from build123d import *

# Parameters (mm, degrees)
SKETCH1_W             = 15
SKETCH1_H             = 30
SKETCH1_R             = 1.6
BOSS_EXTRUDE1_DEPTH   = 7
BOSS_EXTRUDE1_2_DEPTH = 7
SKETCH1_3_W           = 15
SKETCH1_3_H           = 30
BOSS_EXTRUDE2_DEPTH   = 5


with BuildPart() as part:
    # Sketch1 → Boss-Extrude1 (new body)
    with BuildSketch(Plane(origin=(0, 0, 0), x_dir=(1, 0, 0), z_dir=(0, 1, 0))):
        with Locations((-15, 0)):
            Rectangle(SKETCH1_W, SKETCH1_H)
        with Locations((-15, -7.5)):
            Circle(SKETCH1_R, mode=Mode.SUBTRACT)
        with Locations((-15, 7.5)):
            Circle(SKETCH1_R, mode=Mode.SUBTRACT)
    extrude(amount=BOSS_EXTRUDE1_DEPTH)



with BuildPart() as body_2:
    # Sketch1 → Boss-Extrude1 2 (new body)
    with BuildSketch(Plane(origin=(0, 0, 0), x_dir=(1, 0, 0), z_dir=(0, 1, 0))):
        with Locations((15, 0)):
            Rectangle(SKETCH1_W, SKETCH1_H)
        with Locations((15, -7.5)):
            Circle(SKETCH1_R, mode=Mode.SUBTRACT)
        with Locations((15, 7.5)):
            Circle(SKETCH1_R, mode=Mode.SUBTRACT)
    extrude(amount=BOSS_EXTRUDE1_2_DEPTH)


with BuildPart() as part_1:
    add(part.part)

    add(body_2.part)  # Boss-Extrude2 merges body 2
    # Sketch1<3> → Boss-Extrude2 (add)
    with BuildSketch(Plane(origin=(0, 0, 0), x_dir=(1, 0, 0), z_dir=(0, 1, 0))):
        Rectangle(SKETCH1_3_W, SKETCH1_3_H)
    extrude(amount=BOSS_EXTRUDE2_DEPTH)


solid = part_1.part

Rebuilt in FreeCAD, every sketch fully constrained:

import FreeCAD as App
import Part
import Sketcher
Q = App.Units.Quantity


def add_polygon(sketch, points):
    """Adds a closed chain of lines whose ends are joined by coincident constraints."""
    first, n = sketch.GeometryCount, len(points)
    for a, b in zip(points, points[1:] + points[:1]):
        sketch.addGeometry(Part.LineSegment(App.Vector(*a, 0), App.Vector(*b, 0)), False)
    for i in range(n):
        sketch.addConstraint(Sketcher.Constraint("Coincident", first + i, 2, first + (i + 1) % n, 1))

doc = App.newDocument("Part")
params = doc.addObject("Spreadsheet::Sheet", "Params")
for row, (alias, value) in enumerate([
    ("sketch1_diameter", "3.2 mm"),
    ("sketch1_width", "15 mm"),
    ("sketch1_height", "30 mm"),
    ("pad1_length", "7 mm"),
    ("sketch2_diameter", "3.2 mm"),
    ("sketch2_width", "15 mm"),
    ("sketch2_height", "30 mm"),
    ("pad2_length", "7 mm"),
    ("sketch3_width", "15 mm"),
    ("sketch3_height", "30 mm"),
    ("pad3_length", "5 mm"),
], start=1):
    params.set(f"A{row}", alias)
    params.set(f"B{row}", "=" + value)
    params.setAlias(f"B{row}", alias)

body = doc.addObject("PartDesign::Body", "Body")

# Sketch on XZ plane
sketch1 = body.newObject("Sketcher::SketchObject", "Sketch")
sketch1.AttachmentSupport = (doc.getObject("XZ_Plane"), [""])
sketch1.MapMode = "FlatFace"
add_polygon(sketch1, [(-22.5, -15), (-22.5, 15), (-7.5, 15), (-7.5, -15)])  # lines 0-3
sketch1.addGeometry(Part.Circle(App.Vector(-15, 7.5, 0), App.Vector(0, 0, 1), 1.6), False)  # 4
sketch1.addGeometry(Part.Circle(App.Vector(-15, -7.5, 0), App.Vector(0, 0, 1), 1.6), False)  # 5
sketch1.addConstraint([
    Sketcher.Constraint("Vertical", 0),
    Sketcher.Constraint("Horizontal", 1),
    Sketcher.Constraint("Vertical", 2),
    Sketcher.Constraint("Horizontal", 3),
    Sketcher.Constraint("Equal", 4, 5),
    Sketcher.Constraint("Symmetric", 4, 3, 5, 3, -1),
    Sketcher.Constraint("Diameter", 4, Q("3.2 mm")),
    Sketcher.Constraint("DistanceX", 1, 1, 1, 2, Q("15 mm")),
    Sketcher.Constraint("DistanceY", 0, 1, 0, 2, Q("30 mm")),
    Sketcher.Constraint("DistanceX", 4, 3, -1, 1, Q("15 mm")),
    Sketcher.Constraint("DistanceY", -1, 1, 0, 2, Q("15 mm")),
    Sketcher.Constraint("DistanceY", 5, 3, 4, 3, Q("15 mm")),
    Sketcher.Constraint("DistanceX", 0, 2, -1, 1, Q("22.5 mm")),
])
sketch1.setExpression("Constraints[10]", "Params.sketch1_diameter")
sketch1.setExpression("Constraints[11]", "Params.sketch1_width")
sketch1.setExpression("Constraints[12]", "Params.sketch1_height")
pad1 = body.newObject("PartDesign::Pad", "Pad")
pad1.Profile = sketch1
pad1.setExpression("Length", "Params.pad1_length")
pad1.Reversed = True
body2 = doc.addObject("PartDesign::Body", "Body001")

# Sketch on XZ plane
sketch2 = body2.newObject("Sketcher::SketchObject", "Sketch001")
sketch2.AttachmentSupport = (doc.getObject("XZ_Plane001"), [""])
sketch2.MapMode = "FlatFace"
add_polygon(sketch2, [(7.5, -15), (7.5, 15), (22.5, 15), (22.5, -15)])  # lines 0-3
sketch2.addGeometry(Part.Circle(App.Vector(15, 7.5, 0), App.Vector(0, 0, 1), 1.6), False)  # 4
sketch2.addGeometry(Part.Circle(App.Vector(15, -7.5, 0), App.Vector(0, 0, 1), 1.6), False)  # 5
sketch2.addConstraint([
    Sketcher.Constraint("Vertical", 0),
    Sketcher.Constraint("Horizontal", 1),
    Sketcher.Constraint("Vertical", 2),
    Sketcher.Constraint("Horizontal", 3),
    Sketcher.Constraint("Equal", 4, 5),
    Sketcher.Constraint("Symmetric", 4, 3, 5, 3, -1),
    Sketcher.Constraint("Diameter", 4, Q("3.2 mm")),
    Sketcher.Constraint("DistanceX", 1, 1, 1, 2, Q("15 mm")),
    Sketcher.Constraint("DistanceY", 0, 1, 0, 2, Q("30 mm")),
    Sketcher.Constraint("DistanceX", -1, 1, 4, 3, Q("15 mm")),
    Sketcher.Constraint("DistanceY", -1, 1, 0, 2, Q("15 mm")),
    Sketcher.Constraint("DistanceY", 5, 3, 4, 3, Q("15 mm")),
    Sketcher.Constraint("DistanceX", -1, 1, 0, 2, Q("7.5 mm")),
])
sketch2.setExpression("Constraints[10]", "Params.sketch2_diameter")
sketch2.setExpression("Constraints[11]", "Params.sketch2_width")
sketch2.setExpression("Constraints[12]", "Params.sketch2_height")
pad2 = body2.newObject("PartDesign::Pad", "Pad001")
pad2.Profile = sketch2
pad2.setExpression("Length", "Params.pad2_length")
pad2.Reversed = True
body.AllowCompound = True
doc.recompute()

boolean = body.newObject("PartDesign::Boolean", "Boolean")
boolean.Type = "Fuse"
boolean.addObjects([body2])

# Sketch on XZ plane
sketch3 = body.newObject("Sketcher::SketchObject", "Sketch002")
sketch3.AttachmentSupport = (doc.getObject("XZ_Plane"), [""])
sketch3.MapMode = "FlatFace"
add_polygon(sketch3, [(-7.5, -15), (-7.5, 15), (7.5, 15), (7.5, -15)])  # lines 0-3
sketch3.addConstraint([
    Sketcher.Constraint("Vertical", 0),
    Sketcher.Constraint("Horizontal", 1),
    Sketcher.Constraint("Vertical", 2),
    Sketcher.Constraint("Horizontal", 3),
    Sketcher.Constraint("Symmetric", 0, 2, 2, 2, -1, 1),
    Sketcher.Constraint("DistanceX", 1, 1, 1, 2, Q("15 mm")),
    Sketcher.Constraint("DistanceY", 0, 1, 0, 2, Q("30 mm")),
])
sketch3.setExpression("Constraints[9]", "Params.sketch3_width")
sketch3.setExpression("Constraints[10]", "Params.sketch3_height")
pad3 = body.newObject("PartDesign::Pad", "Pad002")
pad3.Profile = sketch3
pad3.setExpression("Length", "Params.pad3_length")
pad3.Reversed = True

doc.recompute()
